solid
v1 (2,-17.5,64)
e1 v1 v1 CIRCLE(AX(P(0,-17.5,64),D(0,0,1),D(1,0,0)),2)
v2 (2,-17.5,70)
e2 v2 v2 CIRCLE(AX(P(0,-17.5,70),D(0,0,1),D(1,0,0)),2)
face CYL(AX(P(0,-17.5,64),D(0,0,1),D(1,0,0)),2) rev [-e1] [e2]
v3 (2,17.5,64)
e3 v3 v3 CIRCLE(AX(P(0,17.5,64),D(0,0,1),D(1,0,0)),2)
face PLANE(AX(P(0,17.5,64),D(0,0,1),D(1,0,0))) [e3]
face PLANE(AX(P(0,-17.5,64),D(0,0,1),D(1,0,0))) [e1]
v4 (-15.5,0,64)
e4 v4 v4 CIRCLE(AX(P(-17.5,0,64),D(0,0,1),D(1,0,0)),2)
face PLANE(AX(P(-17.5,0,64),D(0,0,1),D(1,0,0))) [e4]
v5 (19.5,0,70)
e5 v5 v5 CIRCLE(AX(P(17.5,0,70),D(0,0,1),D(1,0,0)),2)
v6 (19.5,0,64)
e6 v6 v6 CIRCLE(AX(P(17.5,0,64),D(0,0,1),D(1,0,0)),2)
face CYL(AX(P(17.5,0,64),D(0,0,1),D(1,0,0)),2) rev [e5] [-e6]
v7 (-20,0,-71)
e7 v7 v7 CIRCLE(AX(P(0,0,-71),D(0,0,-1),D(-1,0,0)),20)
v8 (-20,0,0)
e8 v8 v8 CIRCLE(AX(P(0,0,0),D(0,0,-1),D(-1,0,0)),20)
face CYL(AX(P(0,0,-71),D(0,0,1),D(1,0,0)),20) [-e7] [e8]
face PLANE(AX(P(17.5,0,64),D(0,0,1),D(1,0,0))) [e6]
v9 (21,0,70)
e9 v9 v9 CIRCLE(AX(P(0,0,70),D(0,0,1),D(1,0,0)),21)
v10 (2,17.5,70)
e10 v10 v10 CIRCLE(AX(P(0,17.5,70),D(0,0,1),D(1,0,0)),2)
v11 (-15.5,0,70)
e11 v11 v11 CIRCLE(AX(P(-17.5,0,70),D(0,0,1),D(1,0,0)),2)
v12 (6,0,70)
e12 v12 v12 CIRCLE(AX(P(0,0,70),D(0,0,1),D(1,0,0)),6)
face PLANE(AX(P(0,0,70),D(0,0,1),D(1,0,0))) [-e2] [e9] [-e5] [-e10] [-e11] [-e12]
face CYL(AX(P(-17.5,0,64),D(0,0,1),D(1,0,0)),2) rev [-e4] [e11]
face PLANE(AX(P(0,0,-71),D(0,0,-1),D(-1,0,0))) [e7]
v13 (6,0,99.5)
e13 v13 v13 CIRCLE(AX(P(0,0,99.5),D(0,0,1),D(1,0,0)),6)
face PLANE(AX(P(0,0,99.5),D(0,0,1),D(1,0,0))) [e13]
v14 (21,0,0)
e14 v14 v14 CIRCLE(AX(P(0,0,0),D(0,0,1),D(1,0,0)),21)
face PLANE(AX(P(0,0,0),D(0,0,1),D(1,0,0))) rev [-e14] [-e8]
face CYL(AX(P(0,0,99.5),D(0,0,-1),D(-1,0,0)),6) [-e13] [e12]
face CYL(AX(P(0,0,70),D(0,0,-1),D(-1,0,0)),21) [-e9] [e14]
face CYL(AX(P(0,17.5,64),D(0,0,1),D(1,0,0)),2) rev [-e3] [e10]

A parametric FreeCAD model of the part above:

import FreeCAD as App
import Part
import Sketcher

doc = App.newDocument("Part")
body = doc.addObject("PartDesign::Body", "Body")

# Sketch on XY plane
sketch1 = body.newObject("Sketcher::SketchObject", "Sketch")
sketch1.AttachmentSupport = (doc.getObject("XY_Plane"), [""])
sketch1.MapMode = "FlatFace"
sketch1.addGeometry(Part.Circle(App.Vector(0, 0, 0), App.Vector(0, 0, 1), 21), False)
sketch1.addConstraint([
    Sketcher.Constraint("Coincident", 0, 3, -1, 1),
    Sketcher.Constraint("Diameter", 0, 42.0),
])
pad1 = body.newObject("PartDesign::Pad", "Pad")
pad1.Profile = sketch1
pad1.Length = 70

# Sketch on XY plane
sketch2 = body.newObject("Sketcher::SketchObject", "Sketch001")
sketch2.AttachmentSupport = (doc.getObject("XY_Plane"), [""])
sketch2.MapMode = "FlatFace"
sketch2.AttachmentOffset = App.Placement(App.Vector(0, 0, 70), App.Rotation())
sketch2.addGeometry([
    Part.Circle(App.Vector(0, 17.5, 0), App.Vector(0, 0, 1), 2),
    Part.Circle(App.Vector(17.5, 0, 0), App.Vector(0, 0, 1), 2),
    Part.Circle(App.Vector(0, -17.5, 0), App.Vector(0, 0, 1), 2),
    Part.Circle(App.Vector(-17.5, 0, 0), App.Vector(0, 0, 1), 2),
], False)
sketch2.addConstraint([
    Sketcher.Constraint("Equal", 0, 1),
    Sketcher.Constraint("Equal", 1, 2),
    Sketcher.Constraint("Equal", 2, 3),
    Sketcher.Constraint("Symmetric", 0, 3, 2, 3, -1, 1),
    Sketcher.Constraint("Symmetric", 1, 3, 3, 3, -1, 1),
    Sketcher.Constraint("PointOnObject", 0, 3, -2),
    Sketcher.Constraint("PointOnObject", 1, 3, -1),
    Sketcher.Constraint("Diameter", 0, 4.0),
    Sketcher.Constraint("DistanceY", 2, 3, 0, 3, 35.0),
    Sketcher.Constraint("DistanceX", 3, 3, 1, 3, 35.0),
])
pocket1 = body.newObject("PartDesign::Pocket", "Pocket")
pocket1.Profile = sketch2
pocket1.Length = 6

# Sketch on XY plane
sketch3 = body.newObject("Sketcher::SketchObject", "Sketch002")
sketch3.AttachmentSupport = (doc.getObject("XY_Plane"), [""])
sketch3.MapMode = "FlatFace"
sketch3.AttachmentOffset = App.Placement(App.Vector(0, 0, 70), App.Rotation())
sketch3.addGeometry(Part.Circle(App.Vector(0, 0, 0), App.Vector(0, 0, 1), 6), False)
sketch3.addConstraint([
    Sketcher.Constraint("Coincident", 0, 3, -1, 1),
    Sketcher.Constraint("Diameter", 0, 12.0),
])
pad2 = body.newObject("PartDesign::Pad", "Pad001")
pad2.Profile = sketch3
pad2.Length = 29.5

# Sketch on XY plane
sketch4 = body.newObject("Sketcher::SketchObject", "Sketch003")
sketch4.AttachmentSupport = (doc.getObject("XY_Plane"), [""])
sketch4.MapMode = "FlatFace"
sketch4.addGeometry(Part.Circle(App.Vector(0, 0, 0), App.Vector(0, 0, 1), 20), False)
sketch4.addConstraint([
    Sketcher.Constraint("Coincident", 0, 3, -1, 1),
    Sketcher.Constraint("Diameter", 0, 40.0),
])
pad3 = body.newObject("PartDesign::Pad", "Pad002")
pad3.Profile = sketch4
pad3.Length = 71
pad3.Reversed = True

doc.recompute()
